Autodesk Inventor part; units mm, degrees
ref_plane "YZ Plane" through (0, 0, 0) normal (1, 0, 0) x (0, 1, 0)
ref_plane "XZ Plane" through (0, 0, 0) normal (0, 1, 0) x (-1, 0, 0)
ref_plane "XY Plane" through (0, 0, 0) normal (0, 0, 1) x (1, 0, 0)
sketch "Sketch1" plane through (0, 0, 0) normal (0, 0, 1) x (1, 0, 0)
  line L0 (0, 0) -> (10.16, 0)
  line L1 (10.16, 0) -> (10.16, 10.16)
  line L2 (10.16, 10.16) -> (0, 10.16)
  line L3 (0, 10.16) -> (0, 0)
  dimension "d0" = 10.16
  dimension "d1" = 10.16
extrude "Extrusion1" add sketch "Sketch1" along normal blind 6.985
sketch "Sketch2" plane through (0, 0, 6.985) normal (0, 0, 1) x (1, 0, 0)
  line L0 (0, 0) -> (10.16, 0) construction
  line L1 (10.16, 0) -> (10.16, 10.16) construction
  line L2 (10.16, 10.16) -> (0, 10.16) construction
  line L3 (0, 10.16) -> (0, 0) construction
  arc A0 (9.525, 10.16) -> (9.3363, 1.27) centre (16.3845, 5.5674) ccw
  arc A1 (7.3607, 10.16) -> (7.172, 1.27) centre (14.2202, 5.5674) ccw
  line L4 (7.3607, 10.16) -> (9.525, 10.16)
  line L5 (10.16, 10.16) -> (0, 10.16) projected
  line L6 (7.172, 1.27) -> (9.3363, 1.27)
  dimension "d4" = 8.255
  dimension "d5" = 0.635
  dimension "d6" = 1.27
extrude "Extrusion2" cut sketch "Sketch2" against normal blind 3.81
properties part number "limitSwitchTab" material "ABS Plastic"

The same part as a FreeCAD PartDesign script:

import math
import FreeCAD as App
import Part
import Sketcher
Q = App.Units.Quantity


def add_polygon(sketch, points):
    """Adds a closed chain of lines whose ends are joined by coincident constraints."""
    first, n = sketch.GeometryCount, len(points)
    for a, b in zip(points, points[1:] + points[:1]):
        sketch.addGeometry(Part.LineSegment(App.Vector(*a, 0), App.Vector(*b, 0)), False)
    for i in range(n):
        sketch.addConstraint(Sketcher.Constraint("Coincident", first + i, 2, first + (i + 1) % n, 1))

doc = App.newDocument("Part")
body = doc.addObject("PartDesign::Body", "Body")

# Sketch on XY plane
sketch1 = body.newObject("Sketcher::SketchObject", "Sketch")
sketch1.AttachmentSupport = (doc.getObject("XY_Plane"), [""])
sketch1.MapMode = "FlatFace"
add_polygon(sketch1, [(0, 10.16), (0, 0), (10.16, 0), (10.16, 10.16)])  # lines 0-3
sketch1.addConstraint([
    Sketcher.Constraint("Vertical", 0),
    Sketcher.Constraint("Horizontal", 1),
    Sketcher.Constraint("Vertical", 2),
    Sketcher.Constraint("Horizontal", 3),
    Sketcher.Constraint("Coincident", 0, 2, -1, 1),
    Sketcher.Constraint("Equal", 3, 0),
    Sketcher.Constraint("DistanceX", 1, 1, 1, 2, Q("0.4 in")),
])
pad1 = body.newObject("PartDesign::Pad", "Pad")
pad1.Profile = sketch1
pad1.Length = Q("0.275 in")

# Sketch on XY plane
sketch2 = body.newObject("Sketcher::SketchObject", "Sketch001")
sketch2.AttachmentSupport = (doc.getObject("XY_Plane"), [""])
sketch2.MapMode = "FlatFace"
sketch2.AttachmentOffset = App.Placement(App.Vector(0, 0, 0.275 * 25.4), App.Rotation())
sketch2.addGeometry([
    Part.ArcOfCircle(Part.Circle(App.Vector(16.3845, 5.5674, 0), App.Vector(0, 0, 1), 8.254981), math.radians(146.196741), math.radians(211.371329)),
    Part.LineSegment(App.Vector(9.525, 10.16, 0), App.Vector(7.3607, 10.16, 0)),
    Part.ArcOfCircle(Part.Circle(App.Vector(14.2202, 5.5674, 0), App.Vector(0, 0, 1), 8.254981), math.radians(146.196741), math.radians(211.371329)),
    Part.LineSegment(App.Vector(7.172, 1.27, 0), App.Vector(9.3363, 1.27, 0)),
], False)
sketch2.addConstraint([
    Sketcher.Constraint("Coincident", 0, 1, 1, 1),
    Sketcher.Constraint("Coincident", 1, 2, 2, 1),
    Sketcher.Constraint("Coincident", 2, 2, 3, 1),
    Sketcher.Constraint("Coincident", 3, 2, 0, 2),
    Sketcher.Constraint("Horizontal", 1),
    Sketcher.Constraint("Horizontal", 3),
    Sketcher.Constraint("Equal", 0, 2),
    Sketcher.Constraint("Horizontal", 0, 3, 2, 3),
    Sketcher.Constraint("Radius", 0, Q("0.325 in")),
    Sketcher.Constraint("DistanceY", -1, 1, 2, 2, Q("0.05 in")),
    Sketcher.Constraint("DistanceY", -1, 1, 0, 1, Q("0.4 in")),
    Sketcher.Constraint("DistanceX", 1, 2, 1, 1, Q("0.0852 in")),
    Sketcher.Constraint("DistanceX", -1, 1, 0, 1, Q("0.375 in")),
    Sketcher.Constraint("DistanceY", -1, 1, 0, 3, Q("0.2192 in")),
])
pocket1 = body.newObject("PartDesign::Pocket", "Pocket")
pocket1.Profile = sketch2
pocket1.Length = Q("0.15 in")

doc.recompute()
